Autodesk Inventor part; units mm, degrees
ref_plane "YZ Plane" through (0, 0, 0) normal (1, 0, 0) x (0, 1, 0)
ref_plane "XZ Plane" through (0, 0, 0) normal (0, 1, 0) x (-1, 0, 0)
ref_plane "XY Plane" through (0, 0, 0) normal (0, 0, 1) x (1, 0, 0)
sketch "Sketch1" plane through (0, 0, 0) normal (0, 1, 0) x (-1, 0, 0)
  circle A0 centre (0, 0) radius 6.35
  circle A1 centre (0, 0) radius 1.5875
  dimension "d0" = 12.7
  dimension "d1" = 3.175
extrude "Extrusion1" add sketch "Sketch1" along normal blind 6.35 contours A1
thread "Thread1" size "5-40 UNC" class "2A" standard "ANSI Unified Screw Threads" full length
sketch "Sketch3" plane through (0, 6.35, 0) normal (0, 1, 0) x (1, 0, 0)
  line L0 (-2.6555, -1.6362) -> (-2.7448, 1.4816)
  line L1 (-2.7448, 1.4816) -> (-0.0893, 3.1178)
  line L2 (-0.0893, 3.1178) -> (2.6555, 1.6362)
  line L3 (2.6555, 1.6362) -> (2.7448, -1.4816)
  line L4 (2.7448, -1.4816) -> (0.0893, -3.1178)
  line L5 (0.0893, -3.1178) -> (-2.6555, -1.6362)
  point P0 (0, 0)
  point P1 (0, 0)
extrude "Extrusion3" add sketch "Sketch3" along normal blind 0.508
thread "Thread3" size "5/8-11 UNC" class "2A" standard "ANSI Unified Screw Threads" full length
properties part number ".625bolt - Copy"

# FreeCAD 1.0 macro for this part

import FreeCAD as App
import Part
import Sketcher
Q = App.Units.Quantity

doc = App.newDocument("Part")
params = doc.addObject("Spreadsheet::Sheet", "Params")
for row, (alias, value) in enumerate([
    ("sketch1_diameter", "0.125 in"),
    ("pad1_length", "0.25 in"),
    ("pad2_length", "0.02 in"),
], start=1):
    params.set(f"A{row}", alias)
    params.set(f"B{row}", "=" + value)
    params.setAlias(f"B{row}", alias)

body = doc.addObject("PartDesign::Body", "Body")

sketch1 = body.newObject("Sketcher::SketchObject", "Sketch")
sketch1.AttachmentSupport = (doc.getObject("XZ_Plane"), [""])
sketch1.MapMode = "FlatFace"
sketch1.addGeometry(Part.Circle(App.Vector(0, 0, 0), App.Vector(0, 0, 1), 1.6), False)
sketch1.addConstraint([
    Sketcher.Constraint("Coincident", 0, 3, -1, 1),
    Sketcher.Constraint("Diameter", 0, Q("0.125 in")),
])
sketch1.setExpression("Constraints[1]", "Params.sketch1_diameter")
pad1 = body.newObject("PartDesign::Pad", "Pad")
pad1.Profile = sketch1
pad1.setExpression("Length", "Params.pad1_length")
pad1.Reversed = True

sketch2 = body.newObject("Sketcher::SketchObject", "Sketch001")
sketch2.AttachmentSupport = (doc.getObject("XZ_Plane"), [""])
sketch2.MapMode = "FlatFace"
sketch2.AttachmentOffset = App.Placement(App.Vector(0, 0, -0.25 * 25.4), App.Rotation())
sketch2.addGeometry([
    Part.LineSegment(App.Vector(-2.7, -1.5, 0), App.Vector(-2.7, 1.6, 0)),
    Part.LineSegment(App.Vector(-2.7, 1.6, 0), App.Vector(0.1, 3.1, 0)),
    Part.LineSegment(App.Vector(0.1, 3.1, 0), App.Vector(2.7, 1.5, 0)),
    Part.LineSegment(App.Vector(2.7, 1.5, 0), App.Vector(2.7, -1.6, 0)),
    Part.LineSegment(App.Vector(2.7, -1.6, 0), App.Vector(-0.1, -3.1, 0)),
    Part.LineSegment(App.Vector(-0.1, -3.1, 0), App.Vector(-2.7, -1.5, 0)),
], False)
sketch2.addConstraint([
    Sketcher.Constraint("Coincident", 0, 2, 1, 1),
    Sketcher.Constraint("Coincident", 1, 2, 2, 1),
    Sketcher.Constraint("Coincident", 2, 2, 3, 1),
    Sketcher.Constraint("Coincident", 3, 2, 4, 1),
    Sketcher.Constraint("Coincident", 4, 2, 5, 1),
    Sketcher.Constraint("Coincident", 5, 2, 0, 1),
    Sketcher.Constraint("Symmetric", 0, 2, 3, 2, -1, 1),
    Sketcher.Constraint("Symmetric", 1, 2, 4, 2, -1, 1),
    Sketcher.Constraint("Symmetric", 2, 2, 5, 2, -1, 1),
    Sketcher.Constraint("Equal", 0, 1),
    Sketcher.Constraint("Equal", 1, 2),
    Sketcher.Constraint("Angle", 0, Q("88.3594 deg")),
    Sketcher.Constraint("Angle", 1, Q("28.3595 deg")),
    Sketcher.Constraint("Angle", 2, Q("-31.6395 deg")),
    Sketcher.Constraint("Distance", 0, Q("0.1228 in")),
])
pad2 = body.newObject("PartDesign::Pad", "Pad001")
pad2.Profile = sketch2
pad2.setExpression("Length", "Params.pad2_length")
pad2.Reversed = True

doc.recompute()
